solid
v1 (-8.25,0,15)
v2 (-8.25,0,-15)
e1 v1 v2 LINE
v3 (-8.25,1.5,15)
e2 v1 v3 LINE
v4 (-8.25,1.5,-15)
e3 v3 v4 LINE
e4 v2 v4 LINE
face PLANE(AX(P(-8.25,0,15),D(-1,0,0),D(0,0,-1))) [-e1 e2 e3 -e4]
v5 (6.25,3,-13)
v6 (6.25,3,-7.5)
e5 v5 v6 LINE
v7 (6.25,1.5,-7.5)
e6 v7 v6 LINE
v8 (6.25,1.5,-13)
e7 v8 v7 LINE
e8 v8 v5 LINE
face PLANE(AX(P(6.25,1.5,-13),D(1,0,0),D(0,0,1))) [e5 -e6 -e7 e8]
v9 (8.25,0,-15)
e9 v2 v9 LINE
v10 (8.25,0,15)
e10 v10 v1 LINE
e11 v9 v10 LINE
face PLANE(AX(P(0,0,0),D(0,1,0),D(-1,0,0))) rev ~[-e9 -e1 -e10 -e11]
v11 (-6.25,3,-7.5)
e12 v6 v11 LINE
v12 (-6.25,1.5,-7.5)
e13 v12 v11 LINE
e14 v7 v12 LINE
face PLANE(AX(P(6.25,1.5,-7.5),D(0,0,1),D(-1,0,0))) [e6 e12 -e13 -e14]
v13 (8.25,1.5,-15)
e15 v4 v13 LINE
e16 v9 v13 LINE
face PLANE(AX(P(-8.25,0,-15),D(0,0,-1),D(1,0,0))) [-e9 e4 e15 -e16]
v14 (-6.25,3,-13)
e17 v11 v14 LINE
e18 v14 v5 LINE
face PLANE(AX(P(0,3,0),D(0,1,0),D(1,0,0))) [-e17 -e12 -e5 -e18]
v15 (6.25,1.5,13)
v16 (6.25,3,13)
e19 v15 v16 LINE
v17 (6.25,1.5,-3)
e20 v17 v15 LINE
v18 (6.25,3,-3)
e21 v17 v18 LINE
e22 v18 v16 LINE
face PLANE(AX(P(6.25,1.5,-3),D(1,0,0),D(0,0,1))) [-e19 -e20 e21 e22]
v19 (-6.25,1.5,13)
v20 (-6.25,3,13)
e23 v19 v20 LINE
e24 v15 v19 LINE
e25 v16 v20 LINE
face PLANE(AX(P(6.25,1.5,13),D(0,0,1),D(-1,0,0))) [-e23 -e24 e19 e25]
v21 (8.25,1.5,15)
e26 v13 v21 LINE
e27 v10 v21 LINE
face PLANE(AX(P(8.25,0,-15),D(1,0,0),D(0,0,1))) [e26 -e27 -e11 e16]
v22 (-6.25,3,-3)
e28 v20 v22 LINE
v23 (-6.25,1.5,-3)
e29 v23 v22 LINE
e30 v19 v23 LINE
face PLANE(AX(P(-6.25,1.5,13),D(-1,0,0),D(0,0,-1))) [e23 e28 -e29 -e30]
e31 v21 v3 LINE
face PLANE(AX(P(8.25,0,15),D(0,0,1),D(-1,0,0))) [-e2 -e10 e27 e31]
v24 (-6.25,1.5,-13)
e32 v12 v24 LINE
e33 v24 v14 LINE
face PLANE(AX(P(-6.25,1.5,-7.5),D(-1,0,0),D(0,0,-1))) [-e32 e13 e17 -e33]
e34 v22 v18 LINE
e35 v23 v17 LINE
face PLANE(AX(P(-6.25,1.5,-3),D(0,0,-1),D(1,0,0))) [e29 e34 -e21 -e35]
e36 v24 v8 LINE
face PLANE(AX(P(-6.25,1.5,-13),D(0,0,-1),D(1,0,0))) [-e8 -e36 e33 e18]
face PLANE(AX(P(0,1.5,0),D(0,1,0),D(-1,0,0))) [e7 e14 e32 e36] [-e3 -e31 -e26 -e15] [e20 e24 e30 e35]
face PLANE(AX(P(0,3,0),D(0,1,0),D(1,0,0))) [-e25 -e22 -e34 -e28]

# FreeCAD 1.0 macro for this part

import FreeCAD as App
import Part
import Sketcher

V = App.Vector
Q = App.Units.Quantity

doc = App.newDocument("Part")
body = doc.addObject("PartDesign::Body", "Body")

# Sketch on XZ plane
sketch1 = doc.addObject("Sketcher::SketchObject", "Sketch")
body.addObject(sketch1)
sketch1.AttachmentSupport = (doc.XZ_Plane, [""])
sketch1.MapMode = "FlatFace"
sketch1.addGeometry(Part.LineSegment(V(-8.25, 15, 0), V(8.25, 15, 0)), False)
sketch1.addGeometry(Part.LineSegment(V(8.25, 15, 0), V(8.25, -15, 0)), False)
sketch1.addGeometry(Part.LineSegment(V(8.25, -15, 0), V(-8.25, -15, 0)), False)
sketch1.addGeometry(Part.LineSegment(V(-8.25, -15, 0), V(-8.25, 15, 0)), False)
sketch1.addConstraint(Sketcher.Constraint("Coincident", 0, 2, 1, 1))
sketch1.addConstraint(Sketcher.Constraint("Coincident", 1, 2, 2, 1))
sketch1.addConstraint(Sketcher.Constraint("Coincident", 2, 2, 3, 1))
sketch1.addConstraint(Sketcher.Constraint("Coincident", 3, 2, 0, 1))
sketch1.addConstraint(Sketcher.Constraint("Horizontal", 0))
sketch1.addConstraint(Sketcher.Constraint("Vertical", 1))
sketch1.addConstraint(Sketcher.Constraint("Horizontal", 2))
sketch1.addConstraint(Sketcher.Constraint("Vertical", 3))
sketch1.addConstraint(Sketcher.Constraint("Symmetric", 0, 2, 2, 2, -1, 1))
sketch1.addConstraint(Sketcher.Constraint("DistanceY", 1, 2, 1, 1, Q("30 mm")))
sketch1.addConstraint(Sketcher.Constraint("DistanceX", 0, 1, 0, 2, Q("16.5 mm")))
pad1 = doc.addObject("PartDesign::Pad", "Pad")
body.addObject(pad1)
pad1.Profile = sketch1
pad1.Length = 1.5
pad1.Reversed = True

# Sketch on XZ plane
sketch2 = doc.addObject("Sketcher::SketchObject", "Sketch001")
body.addObject(sketch2)
sketch2.AttachmentSupport = (doc.XZ_Plane, [""])
sketch2.MapMode = "FlatFace"
sketch2.AttachmentOffset = App.Placement(V(0, 0, -1.5), App.Rotation())
sketch2.addGeometry(Part.LineSegment(V(-6.25, 13, 0), V(6.25, 13, 0)), False)
sketch2.addGeometry(Part.LineSegment(V(6.25, 13, 0), V(6.25, -3, 0)), False)
sketch2.addGeometry(Part.LineSegment(V(6.25, -3, 0), V(-6.25, -3, 0)), False)
sketch2.addGeometry(Part.LineSegment(V(-6.25, -3, 0), V(-6.25, 13, 0)), False)
sketch2.addGeometry(Part.LineSegment(V(-6.25, -7.5, 0), V(6.25, -7.5, 0)), False)
sketch2.addGeometry(Part.LineSegment(V(6.25, -7.5, 0), V(6.25, -13, 0)), False)
sketch2.addGeometry(Part.LineSegment(V(6.25, -13, 0), V(-6.25, -13, 0)), False)
sketch2.addGeometry(Part.LineSegment(V(-6.25, -13, 0), V(-6.25, -7.5, 0)), False)
sketch2.addConstraint(Sketcher.Constraint("Coincident", 0, 2, 1, 1))
sketch2.addConstraint(Sketcher.Constraint("Coincident", 1, 2, 2, 1))
sketch2.addConstraint(Sketcher.Constraint("Coincident", 2, 2, 3, 1))
sketch2.addConstraint(Sketcher.Constraint("Coincident", 3, 2, 0, 1))
sketch2.addConstraint(Sketcher.Constraint("Coincident", 4, 2, 5, 1))
sketch2.addConstraint(Sketcher.Constraint("Coincident", 5, 2, 6, 1))
sketch2.addConstraint(Sketcher.Constraint("Coincident", 6, 2, 7, 1))
sketch2.addConstraint(Sketcher.Constraint("Coincident", 7, 2, 4, 1))
sketch2.addConstraint(Sketcher.Constraint("Horizontal", 0))
sketch2.addConstraint(Sketcher.Constraint("Vertical", 1))
sketch2.addConstraint(Sketcher.Constraint("Horizontal", 2))
sketch2.addConstraint(Sketcher.Constraint("Vertical", 3))
sketch2.addConstraint(Sketcher.Constraint("Horizontal", 4))
sketch2.addConstraint(Sketcher.Constraint("Vertical", 5))
sketch2.addConstraint(Sketcher.Constraint("Horizontal", 6))
sketch2.addConstraint(Sketcher.Constraint("Vertical", 7))
sketch2.addConstraint(Sketcher.Constraint("Symmetric", 3, 2, 5, 2, -1, 1))
sketch2.addConstraint(Sketcher.Constraint("Vertical", 1, 2, 4, 2))
sketch2.addConstraint(Sketcher.Constraint("Vertical", 3, 2, 6, 2))
sketch2.addConstraint(Sketcher.Constraint("DistanceY", 1, 2, 1, 1, Q("16 mm")))
sketch2.addConstraint(Sketcher.Constraint("DistanceY", 5, 2, 5, 1, Q("5.5 mm")))
sketch2.addConstraint(Sketcher.Constraint("DistanceX", 0, 1, 0, 2, Q("12.5 mm")))
sketch2.addConstraint(Sketcher.Constraint("DistanceY", -1, 1, 0, 2, Q("13 mm")))
pad2 = doc.addObject("PartDesign::Pad", "Pad001")
body.addObject(pad2)
pad2.Profile = sketch2
pad2.Length = 1.5
pad2.Reversed = True

doc.recompute()
